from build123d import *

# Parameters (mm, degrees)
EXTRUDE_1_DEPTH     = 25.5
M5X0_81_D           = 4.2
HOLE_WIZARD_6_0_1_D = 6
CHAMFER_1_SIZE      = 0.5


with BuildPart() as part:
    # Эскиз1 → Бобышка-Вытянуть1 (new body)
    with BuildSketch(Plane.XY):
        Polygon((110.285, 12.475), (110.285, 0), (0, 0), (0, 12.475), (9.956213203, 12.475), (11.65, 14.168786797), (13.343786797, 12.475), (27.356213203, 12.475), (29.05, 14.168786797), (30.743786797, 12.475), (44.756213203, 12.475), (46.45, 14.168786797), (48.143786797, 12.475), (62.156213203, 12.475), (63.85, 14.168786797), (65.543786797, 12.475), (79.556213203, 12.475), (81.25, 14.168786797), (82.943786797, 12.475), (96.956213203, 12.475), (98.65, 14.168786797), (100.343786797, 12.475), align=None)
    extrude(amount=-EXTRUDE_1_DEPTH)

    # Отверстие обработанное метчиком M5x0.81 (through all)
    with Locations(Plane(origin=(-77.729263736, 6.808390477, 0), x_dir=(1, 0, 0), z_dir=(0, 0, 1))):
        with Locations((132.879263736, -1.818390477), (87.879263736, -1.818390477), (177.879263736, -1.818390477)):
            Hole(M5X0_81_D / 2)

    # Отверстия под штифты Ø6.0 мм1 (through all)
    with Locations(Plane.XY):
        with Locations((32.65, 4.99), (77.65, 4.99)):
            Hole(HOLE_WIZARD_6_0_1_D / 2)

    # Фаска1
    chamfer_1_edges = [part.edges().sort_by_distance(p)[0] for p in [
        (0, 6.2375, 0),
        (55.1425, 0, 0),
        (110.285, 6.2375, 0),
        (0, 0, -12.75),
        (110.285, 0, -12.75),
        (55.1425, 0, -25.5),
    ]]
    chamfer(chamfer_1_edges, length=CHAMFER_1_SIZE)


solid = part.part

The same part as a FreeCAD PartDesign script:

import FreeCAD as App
import Part
import Sketcher
from FreeCAD import Vector
Q = App.Units.Quantity


def edges_at(feature, points):
    """Names of the edges that pass closest to the given points."""
    edges = feature.Shape.Edges
    near = lambda p: min(range(len(edges)), key=lambda i: edges[i].distToShape(Part.Vertex(*p))[0])
    return sorted({f"Edge{near(p) + 1}" for p in points})

doc = App.newDocument("Part")
params = doc.addObject("Spreadsheet::Sheet", "Params")
for row, (alias, value) in enumerate([
    ("pad1_length", "25.5 mm"),
    ("sketch2_diameter", "4.2 mm"),
    ("hole_diameter", "4.2 mm"),
    ("sketch3_diameter", "6 mm"),
    ("hole2_diameter", "6 mm"),
    ("chamfer_size", "0.5 mm"),
], start=1):
    params.set(f"A{row}", alias)
    params.set(f"B{row}", "=" + value)
    params.setAlias(f"B{row}", alias)

body = doc.addObject("PartDesign::Body", "Body")

# Sketch on XY plane
sketch1 = body.newObject("Sketcher::SketchObject", "Sketch")
sketch1.AttachmentSupport = (doc.getObject("XY_Plane"), [""])
sketch1.MapMode = "FlatFace"
sketch1.addGeometry([
    Part.LineSegment(Vector(110.3, 0, 0), Vector(110.3, 12.5, 0)),  # 0
    Part.LineSegment(Vector(110.3, 12.5, 0), Vector(100.3, 12.5, 0)),  # 1
    Part.LineSegment(Vector(100.3, 12.5, 0), Vector(98.7, 14.2, 0)),  # 2
    Part.LineSegment(Vector(98.7, 14.2, 0), Vector(97, 12.5, 0)),  # 3
    Part.LineSegment(Vector(97, 12.5, 0), Vector(82.9, 12.5, 0)),  # 4
    Part.LineSegment(Vector(82.9, 12.5, 0), Vector(81.2, 14.2, 0)),  # 5
    Part.LineSegment(Vector(81.2, 14.2, 0), Vector(79.6, 12.5, 0)),  # 6
    Part.LineSegment(Vector(79.6, 12.5, 0), Vector(65.5, 12.5, 0)),  # 7
    Part.LineSegment(Vector(65.5, 12.5, 0), Vector(63.9, 14.2, 0)),  # 8
    Part.LineSegment(Vector(63.9, 14.2, 0), Vector(62.2, 12.5, 0)),  # 9
    Part.LineSegment(Vector(62.2, 12.5, 0), Vector(48.1, 12.5, 0)),  # 10
    Part.LineSegment(Vector(48.1, 12.5, 0), Vector(46.5, 14.2, 0)),  # 11
    Part.LineSegment(Vector(46.5, 14.2, 0), Vector(44.8, 12.5, 0)),  # 12
    Part.LineSegment(Vector(44.8, 12.5, 0), Vector(30.7, 12.5, 0)),  # 13
    Part.LineSegment(Vector(30.7, 12.5, 0), Vector(29.1, 14.2, 0)),  # 14
    Part.LineSegment(Vector(29.1, 14.2, 0), Vector(27.4, 12.5, 0)),  # 15
    Part.LineSegment(Vector(27.4, 12.5, 0), Vector(13.3, 12.5, 0)),  # 16
    Part.LineSegment(Vector(13.3, 12.5, 0), Vector(11.7, 14.2, 0)),  # 17
    Part.LineSegment(Vector(11.7, 14.2, 0), Vector(10, 12.5, 0)),  # 18
    Part.LineSegment(Vector(10, 12.5, 0), Vector(0, 12.5, 0)),  # 19
    Part.LineSegment(Vector(0, 12.5, 0), Vector(0, 0, 0)),  # 20
    Part.LineSegment(Vector(0, 0, 0), Vector(110.3, 0, 0)),  # 21
], False)
sketch1.addConstraint([
    Sketcher.Constraint("Coincident", 0, 2, 1, 1),
    Sketcher.Constraint("Coincident", 1, 2, 2, 1),
    Sketcher.Constraint("Coincident", 2, 2, 3, 1),
    Sketcher.Constraint("Coincident", 3, 2, 4, 1),
    Sketcher.Constraint("Coincident", 4, 2, 5, 1),
    Sketcher.Constraint("Coincident", 5, 2, 6, 1),
    Sketcher.Constraint("Coincident", 6, 2, 7, 1),
    Sketcher.Constraint("Coincident", 7, 2, 8, 1),
    Sketcher.Constraint("Coincident", 8, 2, 9, 1),
    Sketcher.Constraint("Coincident", 9, 2, 10, 1),
    Sketcher.Constraint("Coincident", 10, 2, 11, 1),
    Sketcher.Constraint("Coincident", 11, 2, 12, 1),
    Sketcher.Constraint("Coincident", 12, 2, 13, 1),
    Sketcher.Constraint("Coincident", 13, 2, 14, 1),
    Sketcher.Constraint("Coincident", 14, 2, 15, 1),
    Sketcher.Constraint("Coincident", 15, 2, 16, 1),
    Sketcher.Constraint("Coincident", 16, 2, 17, 1),
    Sketcher.Constraint("Coincident", 17, 2, 18, 1),
    Sketcher.Constraint("Coincident", 18, 2, 19, 1),
    Sketcher.Constraint("Coincident", 19, 2, 20, 1),
    Sketcher.Constraint("Coincident", 20, 2, 21, 1),
    Sketcher.Constraint("Coincident", 21, 2, 0, 1),
    Sketcher.Constraint("Vertical", 0),
    Sketcher.Constraint("Horizontal", 1),
    Sketcher.Constraint("Horizontal", 4),
    Sketcher.Constraint("Horizontal", 7),
    Sketcher.Constraint("Horizontal", 10),
    Sketcher.Constraint("Horizontal", 13),
    Sketcher.Constraint("Horizontal", 16),
    Sketcher.Constraint("Horizontal", 19),
    Sketcher.Constraint("Vertical", 20),
    Sketcher.Constraint("Horizontal", 21),
    Sketcher.Constraint("Coincident", 20, 2, -1, 1),
    Sketcher.Constraint("Perpendicular", 2, 3),
    Sketcher.Constraint("Perpendicular", 3, 5),
    Sketcher.Constraint("Perpendicular", 5, 6),
    Sketcher.Constraint("Perpendicular", 6, 8),
    Sketcher.Constraint("Perpendicular", 8, 9),
    Sketcher.Constraint("Perpendicular", 9, 11),
    Sketcher.Constraint("Perpendicular", 11, 12),
    Sketcher.Constraint("Perpendicular", 12, 14),
    Sketcher.Constraint("Perpendicular", 14, 15),
    Sketcher.Constraint("Perpendicular", 15, 17),
    Sketcher.Constraint("Perpendicular", 17, 18),
    Sketcher.Constraint("Horizontal", 1, 2, 3, 2),
    Sketcher.Constraint("Horizontal", 2, 2, 5, 2),
    Sketcher.Constraint("Horizontal", 4, 2, 6, 2),
    Sketcher.Constraint("Horizontal", 5, 2, 8, 2),
    Sketcher.Constraint("Horizontal", 7, 2, 9, 2),
    Sketcher.Constraint("Horizontal", 8, 2, 11, 2),
    Sketcher.Constraint("Horizontal", 10, 2, 12, 2),
    Sketcher.Constraint("Horizontal", 11, 2, 14, 2),
    Sketcher.Constraint("Horizontal", 13, 2, 15, 2),
    Sketcher.Constraint("Horizontal", 14, 2, 17, 2),
    Sketcher.Constraint("Horizontal", 16, 2, 18, 2),
    Sketcher.Constraint("Equal", 4, 7),
    Sketcher.Constraint("Equal", 7, 10),
    Sketcher.Constraint("Equal", 10, 13),
    Sketcher.Constraint("Equal", 13, 16),
    Sketcher.Constraint("Equal", 2, 3),
    Sketcher.Constraint("DistanceX", 4, 2, 1, 2, Q("17.4 mm")),
    Sketcher.Constraint("DistanceX", 21, 1, 21, 2, Q("110.285 mm")),
    Sketcher.Constraint("DistanceY", 0, 1, 0, 2, Q("12.475 mm")),
    Sketcher.Constraint("DistanceX", -1, 1, 2, 2, Q("98.65 mm")),
    Sketcher.Constraint("DistanceX", 1, 2, 1, 1, Q("9.941213 mm")),
])
pad1 = body.newObject("PartDesign::Pad", "Pad")
pad1.Profile = sketch1
pad1.setExpression("Length", "Params.pad1_length")
pad1.Reversed = True

# Sketch on XY plane
sketch2 = body.newObject("Sketcher::SketchObject", "Sketch001")
sketch2.AttachmentSupport = (doc.getObject("XY_Plane"), [""])
sketch2.MapMode = "FlatFace"
sketch2.addGeometry([
    Part.Circle(Vector(55.1, 5, 0), Vector(0, 0, 1), 2.1),
    Part.Circle(Vector(10.2, 5, 0), Vector(0, 0, 1), 2.1),
    Part.Circle(Vector(100.2, 5, 0), Vector(0, 0, 1), 2.1),
], False)
sketch2.addConstraint([
    Sketcher.Constraint("Equal", 0, 1),
    Sketcher.Constraint("Equal", 1, 2),
    Sketcher.Constraint("Horizontal", 0, 3, 1, 3),
    Sketcher.Constraint("Horizontal", 1, 3, 2, 3),
    Sketcher.Constraint("Diameter", 0, Q("4.2 mm")),
    Sketcher.Constraint("DistanceX", 1, 3, 0, 3, Q("45 mm")),
    Sketcher.Constraint("DistanceX", 0, 3, 2, 3, Q("45 mm")),
    Sketcher.Constraint("DistanceX", -1, 1, 0, 3, Q("55.15 mm")),
    Sketcher.Constraint("DistanceY", -1, 1, 0, 3, Q("4.99 mm")),
])
sketch2.setExpression("Constraints[4]", "Params.sketch2_diameter")
doc.recompute()
hole = body.newObject("PartDesign::Hole", "Hole")
hole.Profile = sketch2
hole.ThreadType = "None"
hole.setExpression("Diameter", "Params.hole_diameter")
hole.DepthType = "ThroughAll"

# Sketch on XY plane
sketch3 = body.newObject("Sketcher::SketchObject", "Sketch002")
sketch3.AttachmentSupport = (doc.getObject("XY_Plane"), [""])
sketch3.MapMode = "FlatFace"
sketch3.addGeometry([
    Part.Circle(Vector(32.6, 5, 0), Vector(0, 0, 1), 3),
    Part.Circle(Vector(77.7, 5, 0), Vector(0, 0, 1), 3),
], False)
sketch3.addConstraint([
    Sketcher.Constraint("Equal", 0, 1),
    Sketcher.Constraint("Horizontal", 0, 3, 1, 3),
    Sketcher.Constraint("Diameter", 0, Q("6 mm")),
    Sketcher.Constraint("DistanceX", 0, 3, 1, 3, Q("45 mm")),
    Sketcher.Constraint("DistanceX", -1, 1, 0, 3, Q("32.65 mm")),
    Sketcher.Constraint("DistanceY", -1, 1, 0, 3, Q("4.99 mm")),
])
sketch3.setExpression("Constraints[2]", "Params.sketch3_diameter")
doc.recompute()
hole2 = body.newObject("PartDesign::Hole", "Hole001")
hole2.Profile = sketch3
hole2.ThreadType = "None"
hole2.setExpression("Diameter", "Params.hole2_diameter")
hole2.DepthType = "ThroughAll"
doc.recompute()

chamfer = body.newObject("PartDesign::Chamfer", "Chamfer")
chamfer.Base = (hole2, edges_at(hole2, [
    (0, 6.237, 0),
    (55.142, 0, 0),
    (110.285, 6.237, 0),
    (0, 0, -12.75),
    (110.285, 0, -12.75),
    (55.142, 0, -25.5),
]))
chamfer.setExpression("Size", "Params.chamfer_size")

doc.recompute()
